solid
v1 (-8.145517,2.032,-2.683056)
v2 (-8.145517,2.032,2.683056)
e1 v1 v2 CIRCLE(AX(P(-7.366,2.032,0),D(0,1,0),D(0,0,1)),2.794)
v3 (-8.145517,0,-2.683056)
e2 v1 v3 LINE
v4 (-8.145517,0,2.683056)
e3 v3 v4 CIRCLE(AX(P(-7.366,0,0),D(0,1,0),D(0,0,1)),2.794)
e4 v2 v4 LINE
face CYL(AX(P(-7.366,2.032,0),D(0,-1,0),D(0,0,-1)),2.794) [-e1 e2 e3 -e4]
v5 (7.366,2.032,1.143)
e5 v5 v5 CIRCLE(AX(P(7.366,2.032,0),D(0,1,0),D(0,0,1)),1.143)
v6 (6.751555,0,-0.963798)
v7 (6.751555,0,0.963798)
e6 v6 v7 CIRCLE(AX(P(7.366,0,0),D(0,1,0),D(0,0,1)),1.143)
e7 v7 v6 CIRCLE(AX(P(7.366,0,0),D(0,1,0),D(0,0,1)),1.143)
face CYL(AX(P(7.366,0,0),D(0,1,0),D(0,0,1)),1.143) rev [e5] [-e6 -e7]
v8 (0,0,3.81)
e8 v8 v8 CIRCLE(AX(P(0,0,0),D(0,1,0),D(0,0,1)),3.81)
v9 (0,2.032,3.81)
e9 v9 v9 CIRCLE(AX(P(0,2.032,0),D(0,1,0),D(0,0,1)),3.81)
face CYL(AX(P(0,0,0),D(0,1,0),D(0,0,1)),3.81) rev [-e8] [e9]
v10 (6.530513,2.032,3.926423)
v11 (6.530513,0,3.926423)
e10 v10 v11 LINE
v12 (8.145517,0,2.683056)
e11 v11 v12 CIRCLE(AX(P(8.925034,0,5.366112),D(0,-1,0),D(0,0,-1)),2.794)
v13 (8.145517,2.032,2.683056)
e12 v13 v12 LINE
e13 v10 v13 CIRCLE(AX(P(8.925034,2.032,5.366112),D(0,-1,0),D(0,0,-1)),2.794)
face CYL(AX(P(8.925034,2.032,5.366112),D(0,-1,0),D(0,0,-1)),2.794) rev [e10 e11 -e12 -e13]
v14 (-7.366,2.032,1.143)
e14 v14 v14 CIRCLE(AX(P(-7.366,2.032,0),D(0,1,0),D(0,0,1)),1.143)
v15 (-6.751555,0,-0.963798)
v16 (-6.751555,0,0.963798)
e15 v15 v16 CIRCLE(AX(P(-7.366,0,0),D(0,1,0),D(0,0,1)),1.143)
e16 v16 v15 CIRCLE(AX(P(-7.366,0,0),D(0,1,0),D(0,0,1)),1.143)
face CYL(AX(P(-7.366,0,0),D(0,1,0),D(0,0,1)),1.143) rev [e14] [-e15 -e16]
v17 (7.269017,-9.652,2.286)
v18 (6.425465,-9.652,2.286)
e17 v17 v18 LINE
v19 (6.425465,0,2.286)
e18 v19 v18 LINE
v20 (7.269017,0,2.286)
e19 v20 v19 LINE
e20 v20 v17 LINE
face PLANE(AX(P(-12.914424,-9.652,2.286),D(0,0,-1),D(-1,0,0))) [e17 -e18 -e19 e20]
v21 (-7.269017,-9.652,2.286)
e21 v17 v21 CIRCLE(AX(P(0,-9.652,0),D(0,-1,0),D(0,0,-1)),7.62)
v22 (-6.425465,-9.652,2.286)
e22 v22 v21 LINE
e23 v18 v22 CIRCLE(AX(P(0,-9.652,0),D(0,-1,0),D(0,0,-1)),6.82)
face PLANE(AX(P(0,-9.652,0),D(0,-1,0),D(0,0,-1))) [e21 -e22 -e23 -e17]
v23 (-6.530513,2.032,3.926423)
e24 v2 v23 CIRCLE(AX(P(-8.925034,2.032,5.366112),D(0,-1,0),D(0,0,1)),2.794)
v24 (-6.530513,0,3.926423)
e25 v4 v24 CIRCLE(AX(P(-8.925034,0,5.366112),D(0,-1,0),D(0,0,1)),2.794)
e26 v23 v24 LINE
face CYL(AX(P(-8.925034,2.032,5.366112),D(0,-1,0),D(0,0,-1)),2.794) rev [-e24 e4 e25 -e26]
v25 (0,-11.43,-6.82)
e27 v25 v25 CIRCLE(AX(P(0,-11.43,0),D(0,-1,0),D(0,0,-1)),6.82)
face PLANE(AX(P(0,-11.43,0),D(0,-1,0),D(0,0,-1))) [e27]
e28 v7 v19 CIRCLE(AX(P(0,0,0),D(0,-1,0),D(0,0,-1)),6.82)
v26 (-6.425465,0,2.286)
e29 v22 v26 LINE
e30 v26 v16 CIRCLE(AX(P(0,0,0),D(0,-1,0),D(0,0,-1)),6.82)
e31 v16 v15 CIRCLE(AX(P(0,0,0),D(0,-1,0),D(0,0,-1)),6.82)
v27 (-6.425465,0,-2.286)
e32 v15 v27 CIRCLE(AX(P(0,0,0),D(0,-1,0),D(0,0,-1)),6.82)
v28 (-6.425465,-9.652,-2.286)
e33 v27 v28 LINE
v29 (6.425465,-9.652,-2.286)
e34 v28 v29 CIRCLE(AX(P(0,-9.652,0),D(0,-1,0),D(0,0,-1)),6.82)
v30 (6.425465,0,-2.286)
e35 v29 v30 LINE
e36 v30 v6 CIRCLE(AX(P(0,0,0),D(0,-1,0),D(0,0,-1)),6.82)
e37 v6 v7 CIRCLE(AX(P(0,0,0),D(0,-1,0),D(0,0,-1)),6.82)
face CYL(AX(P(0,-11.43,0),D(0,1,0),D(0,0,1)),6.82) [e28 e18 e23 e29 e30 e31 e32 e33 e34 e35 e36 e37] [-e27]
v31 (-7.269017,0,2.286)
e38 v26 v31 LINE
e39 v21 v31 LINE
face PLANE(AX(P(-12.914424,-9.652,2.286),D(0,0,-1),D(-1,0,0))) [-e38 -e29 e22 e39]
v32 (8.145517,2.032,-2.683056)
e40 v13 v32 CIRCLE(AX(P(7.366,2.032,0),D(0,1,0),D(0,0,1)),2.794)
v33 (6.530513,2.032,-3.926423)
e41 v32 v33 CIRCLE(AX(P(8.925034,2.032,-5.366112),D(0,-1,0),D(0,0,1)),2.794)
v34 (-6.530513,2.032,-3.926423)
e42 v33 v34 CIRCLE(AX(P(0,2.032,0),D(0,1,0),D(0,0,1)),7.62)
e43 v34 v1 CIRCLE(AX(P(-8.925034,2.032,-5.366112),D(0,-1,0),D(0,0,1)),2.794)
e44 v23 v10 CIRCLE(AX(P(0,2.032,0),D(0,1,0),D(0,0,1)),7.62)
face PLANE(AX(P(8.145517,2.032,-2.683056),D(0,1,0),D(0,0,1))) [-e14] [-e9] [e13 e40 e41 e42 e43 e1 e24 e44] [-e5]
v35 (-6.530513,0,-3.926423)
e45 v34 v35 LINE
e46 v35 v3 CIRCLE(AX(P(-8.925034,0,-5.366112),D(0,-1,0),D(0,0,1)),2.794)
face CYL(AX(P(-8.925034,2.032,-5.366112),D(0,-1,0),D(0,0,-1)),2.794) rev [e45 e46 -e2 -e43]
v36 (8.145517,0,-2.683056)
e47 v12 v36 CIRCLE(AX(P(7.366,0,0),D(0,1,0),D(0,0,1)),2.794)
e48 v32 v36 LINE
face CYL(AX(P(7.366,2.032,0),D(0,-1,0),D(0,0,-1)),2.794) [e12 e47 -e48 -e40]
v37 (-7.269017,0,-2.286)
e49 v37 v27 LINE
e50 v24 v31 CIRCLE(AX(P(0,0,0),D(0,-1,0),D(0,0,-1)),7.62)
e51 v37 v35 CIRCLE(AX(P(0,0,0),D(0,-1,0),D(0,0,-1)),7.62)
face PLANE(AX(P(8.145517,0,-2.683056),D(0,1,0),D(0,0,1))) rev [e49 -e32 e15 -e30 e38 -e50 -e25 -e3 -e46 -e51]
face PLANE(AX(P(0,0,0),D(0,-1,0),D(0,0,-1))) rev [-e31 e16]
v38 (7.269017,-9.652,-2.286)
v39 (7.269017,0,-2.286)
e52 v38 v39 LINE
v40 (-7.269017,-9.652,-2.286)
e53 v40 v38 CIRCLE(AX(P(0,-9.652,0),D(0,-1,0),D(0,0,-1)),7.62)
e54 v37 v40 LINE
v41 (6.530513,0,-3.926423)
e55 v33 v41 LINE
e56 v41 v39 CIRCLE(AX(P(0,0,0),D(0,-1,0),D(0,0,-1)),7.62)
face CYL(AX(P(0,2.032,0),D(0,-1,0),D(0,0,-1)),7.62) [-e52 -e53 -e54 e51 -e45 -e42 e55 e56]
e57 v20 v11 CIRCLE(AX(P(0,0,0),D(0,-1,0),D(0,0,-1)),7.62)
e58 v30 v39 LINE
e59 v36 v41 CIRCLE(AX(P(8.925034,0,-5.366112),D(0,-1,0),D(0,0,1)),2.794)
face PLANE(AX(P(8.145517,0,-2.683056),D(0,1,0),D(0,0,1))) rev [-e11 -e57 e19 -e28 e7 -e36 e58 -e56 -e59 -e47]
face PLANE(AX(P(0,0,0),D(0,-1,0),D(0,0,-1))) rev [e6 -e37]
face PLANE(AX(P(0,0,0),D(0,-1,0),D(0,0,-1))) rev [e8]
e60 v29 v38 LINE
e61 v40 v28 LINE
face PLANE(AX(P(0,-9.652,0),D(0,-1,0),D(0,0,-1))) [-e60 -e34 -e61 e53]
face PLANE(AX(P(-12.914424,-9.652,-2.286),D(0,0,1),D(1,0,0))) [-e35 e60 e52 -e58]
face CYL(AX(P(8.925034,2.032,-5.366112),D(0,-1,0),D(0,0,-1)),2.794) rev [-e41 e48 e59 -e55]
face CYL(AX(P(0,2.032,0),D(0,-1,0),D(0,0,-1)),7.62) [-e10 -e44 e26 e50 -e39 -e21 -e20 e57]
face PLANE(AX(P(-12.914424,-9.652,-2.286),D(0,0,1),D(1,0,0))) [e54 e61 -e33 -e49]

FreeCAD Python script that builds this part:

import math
import FreeCAD as App
import Part
import Sketcher
Q = App.Units.Quantity


def add_polygon(sketch, points):
    """Adds a closed chain of lines whose ends are joined by coincident constraints."""
    first, n = sketch.GeometryCount, len(points)
    for a, b in zip(points, points[1:] + points[:1]):
        sketch.addGeometry(Part.LineSegment(App.Vector(*a, 0), App.Vector(*b, 0)), False)
    for i in range(n):
        sketch.addConstraint(Sketcher.Constraint("Coincident", first + i, 2, first + (i + 1) % n, 1))

doc = App.newDocument("Part")
body = doc.addObject("PartDesign::Body", "Body")

sketch1 = body.newObject("Sketcher::SketchObject", "Sketch")
sketch1.AttachmentSupport = (doc.getObject("XZ_Plane"), [""])
sketch1.MapMode = "FlatFace"
sketch1.addGeometry(Part.ArcOfCircle(Part.Circle(App.Vector(0, 0, 0), App.Vector(0, 0, 1), 7.62), math.radians(31.016082), math.radians(148.983918)), False)
sketch1.addGeometry(Part.ArcOfCircle(Part.Circle(App.Vector(8.925034, 5.366112, 0), App.Vector(0, 0, 1), 2.794), math.radians(-148.983918), math.radians(-106.200344)), False)
sketch1.addGeometry(Part.ArcOfCircle(Part.Circle(App.Vector(7.366, 0, 0), App.Vector(0, 0, 1), 2.794), math.radians(-73.799656), math.radians(73.799656)), False)
sketch1.addGeometry(Part.ArcOfCircle(Part.Circle(App.Vector(8.925034, -5.366112, 0), App.Vector(0, 0, 1), 2.794), math.radians(106.200344), math.radians(148.983918)), False)
sketch1.addGeometry(Part.ArcOfCircle(Part.Circle(App.Vector(0, 0, 0), App.Vector(0, 0, 1), 7.62), math.radians(-148.983918), math.radians(-31.016082)), False)
sketch1.addGeometry(Part.ArcOfCircle(Part.Circle(App.Vector(-8.925034, -5.366112, 0), App.Vector(0, 0, 1), 2.794), math.radians(31.016082), math.radians(73.799656)), False)
sketch1.addGeometry(Part.ArcOfCircle(Part.Circle(App.Vector(-7.366, 0, 0), App.Vector(0, 0, 1), 2.794), math.radians(106.200344), math.radians(253.799656)), False)
sketch1.addGeometry(Part.ArcOfCircle(Part.Circle(App.Vector(-8.925034, 5.366112, 0), App.Vector(0, 0, 1), 2.794), math.radians(-73.799656), math.radians(-31.016082)), False)
sketch1.addConstraint(Sketcher.Constraint("Tangent", 0, 1, 1, 1))
sketch1.addConstraint(Sketcher.Constraint("Tangent", 1, 2, 2, 2))
sketch1.addConstraint(Sketcher.Constraint("Tangent", 2, 1, 3, 1))
sketch1.addConstraint(Sketcher.Constraint("Tangent", 3, 2, 4, 2))
sketch1.addConstraint(Sketcher.Constraint("Tangent", 4, 1, 5, 1))
sketch1.addConstraint(Sketcher.Constraint("Tangent", 5, 2, 6, 2))
sketch1.addConstraint(Sketcher.Constraint("Tangent", 6, 1, 7, 1))
sketch1.addConstraint(Sketcher.Constraint("Tangent", 7, 2, 0, 2))
sketch1.addConstraint(Sketcher.Constraint("Coincident", 0, 3, -1, 1))
sketch1.addConstraint(Sketcher.Constraint("Coincident", 4, 3, -1, 1))
sketch1.addConstraint(Sketcher.Constraint("Equal", 1, 2))
sketch1.addConstraint(Sketcher.Constraint("Equal", 2, 3))
sketch1.addConstraint(Sketcher.Constraint("Equal", 0, 4))
sketch1.addConstraint(Sketcher.Constraint("Equal", 3, 5))
sketch1.addConstraint(Sketcher.Constraint("Equal", 5, 6))
sketch1.addConstraint(Sketcher.Constraint("Equal", 6, 7))
sketch1.addConstraint(Sketcher.Constraint("Symmetric", 2, 3, 6, 3, -1, 1))
sketch1.addConstraint(Sketcher.Constraint("PointOnObject", 2, 3, -1))
sketch1.addConstraint(Sketcher.Constraint("Radius", 0, Q("0.3 in")))
sketch1.addConstraint(Sketcher.Constraint("Radius", 1, Q("0.11 in")))
sketch1.addConstraint(Sketcher.Constraint("DistanceX", -1, 1, 2, 3, Q("0.29 in")))
pad1 = body.newObject("PartDesign::Pad", "Pad")
pad1.Profile = sketch1
pad1.Length = Q("0.08 in")
pad1.Reversed = True

sketch2 = body.newObject("Sketcher::SketchObject", "Sketch001")
sketch2.AttachmentSupport = (doc.getObject("XZ_Plane"), [""])
sketch2.MapMode = "FlatFace"
sketch2.AttachmentOffset = App.Placement(App.Vector(0, 0, -0.08 * 25.4), App.Rotation())
sketch2.addGeometry(Part.Circle(App.Vector(0, 0, 0), App.Vector(0, 0, 1), 3.81), False)
sketch2.addGeometry(Part.Circle(App.Vector(-7.366, 0, 0), App.Vector(0, 0, 1), 1.143), False)
sketch2.addGeometry(Part.Circle(App.Vector(7.366, 0, 0), App.Vector(0, 0, 1), 1.143), False)
sketch2.addConstraint(Sketcher.Constraint("Coincident", 0, 3, -1, 1))
sketch2.addConstraint(Sketcher.Constraint("Equal", 1, 2))
sketch2.addConstraint(Sketcher.Constraint("Symmetric", 1, 3, 2, 3, -1, 1))
sketch2.addConstraint(Sketcher.Constraint("PointOnObject", 1, 3, -1))
sketch2.addConstraint(Sketcher.Constraint("Diameter", 0, Q("0.3 in")))
sketch2.addConstraint(Sketcher.Constraint("Diameter", 1, Q("0.09 in")))
sketch2.addConstraint(Sketcher.Constraint("DistanceX", 1, 3, -1, 1, Q("0.29 in")))
pocket1 = body.newObject("PartDesign::Pocket", "Pocket")
pocket1.Profile = sketch2
pocket1.Type = "ThroughAll"
pocket1.Reversed = True

sketch3 = body.newObject("Sketcher::SketchObject", "Sketch002")
sketch3.AttachmentSupport = (doc.getObject("XZ_Plane"), [""])
sketch3.MapMode = "FlatFace"
sketch3.AttachmentOffset = App.Placement(App.Vector(0, 0, 0.38 * 25.4), App.Rotation())
sketch3.addGeometry(Part.Circle(App.Vector(0, 0, 0), App.Vector(0, 0, 1), 7.62), False)
sketch3.addGeometry(Part.Circle(App.Vector(0, 0, 0), App.Vector(0, 0, 1), 6.82), False)
sketch3.addConstraint(Sketcher.Constraint("Coincident", 0, 3, -1, 1))
sketch3.addConstraint(Sketcher.Constraint("Coincident", 1, 3, -1, 1))
sketch3.addConstraint(Sketcher.Constraint("Diameter", 0, Q("0.6 in")))
sketch3.addConstraint(Sketcher.Constraint("Diameter", 1, 13.64))
pad2 = body.newObject("PartDesign::Pad", "Pad001")
pad2.Profile = sketch3
pad2.Length = Q("0.38 in")
pad2.Reversed = True

sketch4 = body.newObject("Sketcher::SketchObject", "Sketch003")
sketch4.AttachmentSupport = (doc.getObject("XZ_Plane"), [""])
sketch4.MapMode = "FlatFace"
add_polygon(sketch4, [(-12.914424, 2.286), (-12.914424, -2.286), (12.914424, -2.286), (12.914424, 2.286)])
sketch4.addConstraint(Sketcher.Constraint("Vertical", 0))
sketch4.addConstraint(Sketcher.Constraint("Horizontal", 1))
sketch4.addConstraint(Sketcher.Constraint("Vertical", 2))
sketch4.addConstraint(Sketcher.Constraint("Horizontal", 3))
sketch4.addConstraint(Sketcher.Constraint("Symmetric", 0, 2, 2, 2, -1, 1))
sketch4.addConstraint(Sketcher.Constraint("DistanceY", 0, 2, 0, 1, Q("0.18 in")))
sketch4.addConstraint(Sketcher.Constraint("DistanceX", 1, 1, 1, 2, 25.828849))
pocket2 = body.newObject("PartDesign::Pocket", "Pocket001")
pocket2.Profile = sketch4
pocket2.Type = "ThroughAll"
pocket2.Reversed = True

sketch5 = body.newObject("Sketcher::SketchObject", "Sketch004")
sketch5.AttachmentSupport = (doc.getObject("XZ_Plane"), [""])
sketch5.MapMode = "FlatFace"
sketch5.AttachmentOffset = App.Placement(App.Vector(0, 0, 0.45 * 25.4), App.Rotation())
sketch5.addGeometry(Part.Circle(App.Vector(0, 0, 0), App.Vector(0, 0, 1), 6.82), False)
sketch5.addConstraint(Sketcher.Constraint("Coincident", 0, 3, -1, 1))
sketch5.addConstraint(Sketcher.Constraint("Diameter", 0, 13.64))
pad3 = body.newObject("PartDesign::Pad", "Pad002")
pad3.Profile = sketch5
pad3.Length = Q("0.45 in")
pad3.Reversed = True

doc.recompute()
